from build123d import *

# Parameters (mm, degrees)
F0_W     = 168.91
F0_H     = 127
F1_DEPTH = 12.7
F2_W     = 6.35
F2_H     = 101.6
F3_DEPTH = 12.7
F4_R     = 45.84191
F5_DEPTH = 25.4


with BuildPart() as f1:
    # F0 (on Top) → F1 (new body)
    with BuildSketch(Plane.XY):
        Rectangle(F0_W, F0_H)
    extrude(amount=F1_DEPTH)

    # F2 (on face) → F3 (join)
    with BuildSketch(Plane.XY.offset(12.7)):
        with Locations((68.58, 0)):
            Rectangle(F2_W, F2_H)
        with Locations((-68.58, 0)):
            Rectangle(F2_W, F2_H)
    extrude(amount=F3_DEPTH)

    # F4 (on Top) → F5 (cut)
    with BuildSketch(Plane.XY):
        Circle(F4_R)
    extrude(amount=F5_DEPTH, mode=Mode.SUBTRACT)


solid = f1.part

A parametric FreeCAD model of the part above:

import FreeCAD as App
import Part
import Sketcher
Q = App.Units.Quantity


def add_polygon(sketch, points):
    """Adds a closed chain of lines whose ends are joined by coincident constraints."""
    first, n = sketch.GeometryCount, len(points)
    for a, b in zip(points, points[1:] + points[:1]):
        sketch.addGeometry(Part.LineSegment(App.Vector(*a, 0), App.Vector(*b, 0)), False)
    for i in range(n):
        sketch.addConstraint(Sketcher.Constraint("Coincident", first + i, 2, first + (i + 1) % n, 1))

doc = App.newDocument("Part")
body = doc.addObject("PartDesign::Body", "Body")

# Sketch on XY plane
sketch1 = doc.addObject("Sketcher::SketchObject", "Sketch")
body.addObject(sketch1)
sketch1.AttachmentSupport = (doc.XY_Plane, [""])
sketch1.MapMode = "FlatFace"
add_polygon(sketch1, [(-84.455, 63.5), (-84.455, -63.5), (84.455, -63.5), (84.455, 63.5)])  # lines 0-3
sketch1.addConstraint([
    Sketcher.Constraint("Vertical", 0),
    Sketcher.Constraint("Horizontal", 1),
    Sketcher.Constraint("Vertical", 2),
    Sketcher.Constraint("Horizontal", 3),
    Sketcher.Constraint("Symmetric", 0, 2, 2, 2, -1, 1),
    Sketcher.Constraint("DistanceY", 0, 2, 0, 1, Q("5 in")),
    Sketcher.Constraint("DistanceX", 1, 1, 1, 2, Q("6.65 in")),
])
pad1 = doc.addObject("PartDesign::Pad", "Pad")
body.addObject(pad1)
pad1.Profile = sketch1
pad1.Length = Q("0.5 in")

# Sketch on XY plane
sketch2 = doc.addObject("Sketcher::SketchObject", "Sketch001")
body.addObject(sketch2)
sketch2.AttachmentSupport = (doc.XY_Plane, [""])
sketch2.MapMode = "FlatFace"
sketch2.AttachmentOffset = App.Placement(App.Vector(0, 0, 0.5 * 25.4), App.Rotation())
add_polygon(sketch2, [(65.405, 50.8), (65.405, -50.8), (71.755, -50.8), (71.755, 50.8)])  # lines 0-3
add_polygon(sketch2, [(-71.755, 50.8), (-71.755, -50.8), (-65.405, -50.8), (-65.405, 50.8)])  # lines 4-7
sketch2.addConstraint([
    Sketcher.Constraint("Vertical", 0),
    Sketcher.Constraint("Horizontal", 1),
    Sketcher.Constraint("Vertical", 2),
    Sketcher.Constraint("Horizontal", 3),
    Sketcher.Constraint("Vertical", 4),
    Sketcher.Constraint("Horizontal", 5),
    Sketcher.Constraint("Vertical", 6),
    Sketcher.Constraint("Horizontal", 7),
    Sketcher.Constraint("Symmetric", 2, 2, 4, 2, -1, 1),
    Sketcher.Constraint("Symmetric", 0, 2, 6, 2, -1, 1),
    Sketcher.Constraint("Horizontal", 1, 2, 4, 2),
    Sketcher.Constraint("DistanceY", 0, 2, 0, 1, Q("4 in")),
    Sketcher.Constraint("DistanceX", 1, 1, 1, 2, Q("0.25 in")),
    Sketcher.Constraint("DistanceX", 4, 2, 0, 2, Q("5.4 in")),
])
pad2 = doc.addObject("PartDesign::Pad", "Pad001")
body.addObject(pad2)
pad2.Profile = sketch2
pad2.Length = Q("0.5 in")

# Sketch on XY plane
sketch3 = doc.addObject("Sketcher::SketchObject", "Sketch002")
body.addObject(sketch3)
sketch3.AttachmentSupport = (doc.XY_Plane, [""])
sketch3.MapMode = "FlatFace"
sketch3.addGeometry(Part.Circle(App.Vector(0, 0, 0), App.Vector(0, 0, 1), 45.84191), False)
sketch3.addConstraint([
    Sketcher.Constraint("Coincident", 0, 3, -1, 1),
    Sketcher.Constraint("Diameter", 0, Q("91.68382 mm")),
])
pocket1 = doc.addObject("PartDesign::Pocket", "Pocket")
body.addObject(pocket1)
pocket1.Profile = sketch3
pocket1.Length = Q("1 in")
pocket1.Reversed = True

doc.recompute()
